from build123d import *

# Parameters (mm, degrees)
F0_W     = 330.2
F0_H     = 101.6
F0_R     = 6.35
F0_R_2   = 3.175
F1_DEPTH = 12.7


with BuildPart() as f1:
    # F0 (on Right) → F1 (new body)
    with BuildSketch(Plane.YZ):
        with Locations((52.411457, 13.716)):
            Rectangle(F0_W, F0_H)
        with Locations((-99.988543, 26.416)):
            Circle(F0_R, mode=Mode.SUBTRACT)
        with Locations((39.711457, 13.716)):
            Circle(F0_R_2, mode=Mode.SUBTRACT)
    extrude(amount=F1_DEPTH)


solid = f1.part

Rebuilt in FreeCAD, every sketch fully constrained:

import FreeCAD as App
import Part
import Sketcher
from FreeCAD import Vector
Q = App.Units.Quantity

doc = App.newDocument("Part")
body = doc.addObject("PartDesign::Body", "Body")

sketch1 = doc.addObject("Sketcher::SketchObject", "Sketch")
body.addObject(sketch1)
sketch1.AttachmentSupport = (doc.YZ_Plane, [""])
sketch1.MapMode = "FlatFace"
sketch1.addGeometry([
    Part.LineSegment(Vector(-112.688543, 64.516, 0), Vector(-112.688543, -37.084, 0)),
    Part.LineSegment(Vector(-112.688543, -37.084, 0), Vector(217.511457, -37.084, 0)),
    Part.LineSegment(Vector(217.511457, -37.084, 0), Vector(217.511457, 64.516, 0)),
    Part.LineSegment(Vector(217.511457, 64.516, 0), Vector(-112.688543, 64.516, 0)),
    Part.Circle(Vector(39.711457, 13.716, 0), Vector(0, 0, 1), 3.175),
    Part.Circle(Vector(-99.988543, 26.416, 0), Vector(0, 0, 1), 6.35),
], False)
sketch1.addConstraint([
    Sketcher.Constraint("Coincident", 0, 2, 1, 1),
    Sketcher.Constraint("Coincident", 1, 2, 2, 1),
    Sketcher.Constraint("Coincident", 2, 2, 3, 1),
    Sketcher.Constraint("Coincident", 3, 2, 0, 1),
    Sketcher.Constraint("Vertical", 0),
    Sketcher.Constraint("Horizontal", 1),
    Sketcher.Constraint("Vertical", 2),
    Sketcher.Constraint("Horizontal", 3),
    Sketcher.Constraint("Diameter", 5, Q("0.5 in")),
    Sketcher.Constraint("Diameter", 4, Q("0.25 in")),
    Sketcher.Constraint("DistanceX", 1, 1, 1, 2, Q("13 in")),
    Sketcher.Constraint("DistanceY", 0, 2, 0, 1, Q("4 in")),
    Sketcher.Constraint("DistanceX", 0, 2, 4, 3, Q("6 in")),
    Sketcher.Constraint("DistanceY", 0, 2, 4, 3, Q("2 in")),
    Sketcher.Constraint("DistanceX", 5, 3, 4, 3, Q("5.5 in")),
    Sketcher.Constraint("DistanceY", 4, 3, 5, 3, Q("0.5 in")),
    Sketcher.Constraint("DistanceY", -1, 1, 4, 3, Q("0.54 in")),
    Sketcher.Constraint("DistanceX", -1, 1, 4, 3, 39.711457),
])
pad1 = doc.addObject("PartDesign::Pad", "Pad")
body.addObject(pad1)
pad1.Profile = sketch1
pad1.Length = Q("0.5 in")

doc.recompute()
